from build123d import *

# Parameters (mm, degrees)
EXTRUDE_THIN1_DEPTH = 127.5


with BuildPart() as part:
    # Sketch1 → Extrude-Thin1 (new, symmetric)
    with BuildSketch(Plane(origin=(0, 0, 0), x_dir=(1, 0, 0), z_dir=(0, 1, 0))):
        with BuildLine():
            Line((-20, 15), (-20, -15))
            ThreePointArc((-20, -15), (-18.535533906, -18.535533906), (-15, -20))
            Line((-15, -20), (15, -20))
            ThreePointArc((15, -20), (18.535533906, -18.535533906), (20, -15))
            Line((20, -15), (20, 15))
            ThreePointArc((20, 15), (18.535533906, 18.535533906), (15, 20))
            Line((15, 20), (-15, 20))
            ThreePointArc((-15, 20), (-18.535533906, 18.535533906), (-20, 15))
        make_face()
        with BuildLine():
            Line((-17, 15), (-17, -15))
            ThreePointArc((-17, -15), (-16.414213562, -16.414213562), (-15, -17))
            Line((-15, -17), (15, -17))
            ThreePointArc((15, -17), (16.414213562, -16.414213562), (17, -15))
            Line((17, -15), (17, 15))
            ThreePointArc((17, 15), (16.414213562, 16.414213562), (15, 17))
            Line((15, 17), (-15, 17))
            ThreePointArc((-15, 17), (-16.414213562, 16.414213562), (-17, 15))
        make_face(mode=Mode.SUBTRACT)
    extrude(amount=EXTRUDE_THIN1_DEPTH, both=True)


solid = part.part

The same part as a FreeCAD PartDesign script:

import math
import FreeCAD as App
import Part
import Sketcher
from FreeCAD import Vector
Q = App.Units.Quantity

doc = App.newDocument("Part")
params = doc.addObject("Spreadsheet::Sheet", "Params")
for row, (alias, value) in enumerate([
    ("sketch1_radius", "5 mm"),
    ("sketch1_radius2", "2 mm"),
    ("sketch1_width", "30 mm"),
    ("pad1_length", "255 mm"),
], start=1):
    params.set(f"A{row}", alias)
    params.set(f"B{row}", "=" + value)
    params.setAlias(f"B{row}", alias)

body = doc.addObject("PartDesign::Body", "Body")

# Sketch on XZ plane
sketch1 = body.newObject("Sketcher::SketchObject", "Sketch")
sketch1.AttachmentSupport = (doc.getObject("XZ_Plane"), [""])
sketch1.MapMode = "FlatFace"
sketch1.addGeometry(Part.LineSegment(Vector(-20, -15, 0), Vector(-20, 15, 0)), False)
sketch1.addGeometry(Part.ArcOfCircle(Part.Circle(Vector(-15, 15, 0), Vector(0, 0, 1), 5), math.radians(90), math.radians(180)), False)
sketch1.addGeometry(Part.LineSegment(Vector(-15, 20, 0), Vector(15, 20, 0)), False)
sketch1.addGeometry(Part.ArcOfCircle(Part.Circle(Vector(15, 15, 0), Vector(0, 0, 1), 5), math.radians(0), math.radians(90)), False)
sketch1.addGeometry(Part.LineSegment(Vector(20, 15, 0), Vector(20, -15, 0)), False)
sketch1.addGeometry(Part.ArcOfCircle(Part.Circle(Vector(15, -15, 0), Vector(0, 0, 1), 5), math.radians(-90), math.radians(0)), False)
sketch1.addGeometry(Part.LineSegment(Vector(15, -20, 0), Vector(-15, -20, 0)), False)
sketch1.addGeometry(Part.ArcOfCircle(Part.Circle(Vector(-15, -15, 0), Vector(0, 0, 1), 5), math.radians(180), math.radians(270)), False)
sketch1.addGeometry(Part.LineSegment(Vector(-17, 15, 0), Vector(-17, -15, 0)), False)
sketch1.addGeometry(Part.ArcOfCircle(Part.Circle(Vector(-15, -15, 0), Vector(0, 0, 1), 2), math.radians(-180), math.radians(-90)), False)
sketch1.addGeometry(Part.LineSegment(Vector(-15, -17, 0), Vector(15, -17, 0)), False)
sketch1.addGeometry(Part.ArcOfCircle(Part.Circle(Vector(15, -15, 0), Vector(0, 0, 1), 2), math.radians(-90), math.radians(0)), False)
sketch1.addGeometry(Part.LineSegment(Vector(17, -15, 0), Vector(17, 15, 0)), False)
sketch1.addGeometry(Part.ArcOfCircle(Part.Circle(Vector(15, 15, 0), Vector(0, 0, 1), 2), math.radians(0), math.radians(90)), False)
sketch1.addGeometry(Part.LineSegment(Vector(15, 17, 0), Vector(-15, 17, 0)), False)
sketch1.addGeometry(Part.ArcOfCircle(Part.Circle(Vector(-15, 15, 0), Vector(0, 0, 1), 2), math.radians(90), math.radians(180)), False)
sketch1.addConstraint(Sketcher.Constraint("Tangent", 0, 2, 1, 2))
sketch1.addConstraint(Sketcher.Constraint("Tangent", 1, 1, 2, 1))
sketch1.addConstraint(Sketcher.Constraint("Tangent", 2, 2, 3, 2))
sketch1.addConstraint(Sketcher.Constraint("Tangent", 3, 1, 4, 1))
sketch1.addConstraint(Sketcher.Constraint("Tangent", 4, 2, 5, 2))
sketch1.addConstraint(Sketcher.Constraint("Tangent", 5, 1, 6, 1))
sketch1.addConstraint(Sketcher.Constraint("Tangent", 6, 2, 7, 2))
sketch1.addConstraint(Sketcher.Constraint("Tangent", 7, 1, 0, 1))
sketch1.addConstraint(Sketcher.Constraint("Tangent", 8, 2, 9, 1))
sketch1.addConstraint(Sketcher.Constraint("Tangent", 9, 2, 10, 1))
sketch1.addConstraint(Sketcher.Constraint("Tangent", 10, 2, 11, 1))
sketch1.addConstraint(Sketcher.Constraint("Tangent", 11, 2, 12, 1))
sketch1.addConstraint(Sketcher.Constraint("Tangent", 12, 2, 13, 1))
sketch1.addConstraint(Sketcher.Constraint("Tangent", 13, 2, 14, 1))
sketch1.addConstraint(Sketcher.Constraint("Tangent", 14, 2, 15, 1))
sketch1.addConstraint(Sketcher.Constraint("Tangent", 15, 2, 8, 1))
sketch1.addConstraint(Sketcher.Constraint("Vertical", 0))
sketch1.addConstraint(Sketcher.Constraint("Horizontal", 2))
sketch1.addConstraint(Sketcher.Constraint("Vertical", 4))
sketch1.addConstraint(Sketcher.Constraint("Horizontal", 6))
sketch1.addConstraint(Sketcher.Constraint("Vertical", 8))
sketch1.addConstraint(Sketcher.Constraint("Horizontal", 10))
sketch1.addConstraint(Sketcher.Constraint("Vertical", 12))
sketch1.addConstraint(Sketcher.Constraint("Horizontal", 14))
sketch1.addConstraint(Sketcher.Constraint("Coincident", 9, 3, 7, 3))
sketch1.addConstraint(Sketcher.Constraint("Coincident", 11, 3, 5, 3))
sketch1.addConstraint(Sketcher.Constraint("Coincident", 13, 3, 3, 3))
sketch1.addConstraint(Sketcher.Constraint("Equal", 1, 3))
sketch1.addConstraint(Sketcher.Constraint("Equal", 3, 5))
sketch1.addConstraint(Sketcher.Constraint("Equal", 5, 7))
sketch1.addConstraint(Sketcher.Constraint("Equal", 13, 15))
sketch1.addConstraint(Sketcher.Constraint("Symmetric", 1, 3, 5, 3, -1, 1))
sketch1.addConstraint(Sketcher.Constraint("Equal", 14, 0))
sketch1.addConstraint(Sketcher.Constraint("Radius", 1, Q("5 mm")))
sketch1.addConstraint(Sketcher.Constraint("Radius", 9, Q("2 mm")))
sketch1.addConstraint(Sketcher.Constraint("DistanceX", 2, 1, 2, 2, Q("30 mm")))
sketch1.setExpression("Constraints[33]", "Params.sketch1_radius")
sketch1.setExpression("Constraints[34]", "Params.sketch1_radius2")
sketch1.setExpression("Constraints[35]", "Params.sketch1_width")
pad1 = body.newObject("PartDesign::Pad", "Pad")
pad1.Profile = sketch1
pad1.setExpression("Length", "Params.pad1_length")
pad1.Midplane = True

doc.recompute()
